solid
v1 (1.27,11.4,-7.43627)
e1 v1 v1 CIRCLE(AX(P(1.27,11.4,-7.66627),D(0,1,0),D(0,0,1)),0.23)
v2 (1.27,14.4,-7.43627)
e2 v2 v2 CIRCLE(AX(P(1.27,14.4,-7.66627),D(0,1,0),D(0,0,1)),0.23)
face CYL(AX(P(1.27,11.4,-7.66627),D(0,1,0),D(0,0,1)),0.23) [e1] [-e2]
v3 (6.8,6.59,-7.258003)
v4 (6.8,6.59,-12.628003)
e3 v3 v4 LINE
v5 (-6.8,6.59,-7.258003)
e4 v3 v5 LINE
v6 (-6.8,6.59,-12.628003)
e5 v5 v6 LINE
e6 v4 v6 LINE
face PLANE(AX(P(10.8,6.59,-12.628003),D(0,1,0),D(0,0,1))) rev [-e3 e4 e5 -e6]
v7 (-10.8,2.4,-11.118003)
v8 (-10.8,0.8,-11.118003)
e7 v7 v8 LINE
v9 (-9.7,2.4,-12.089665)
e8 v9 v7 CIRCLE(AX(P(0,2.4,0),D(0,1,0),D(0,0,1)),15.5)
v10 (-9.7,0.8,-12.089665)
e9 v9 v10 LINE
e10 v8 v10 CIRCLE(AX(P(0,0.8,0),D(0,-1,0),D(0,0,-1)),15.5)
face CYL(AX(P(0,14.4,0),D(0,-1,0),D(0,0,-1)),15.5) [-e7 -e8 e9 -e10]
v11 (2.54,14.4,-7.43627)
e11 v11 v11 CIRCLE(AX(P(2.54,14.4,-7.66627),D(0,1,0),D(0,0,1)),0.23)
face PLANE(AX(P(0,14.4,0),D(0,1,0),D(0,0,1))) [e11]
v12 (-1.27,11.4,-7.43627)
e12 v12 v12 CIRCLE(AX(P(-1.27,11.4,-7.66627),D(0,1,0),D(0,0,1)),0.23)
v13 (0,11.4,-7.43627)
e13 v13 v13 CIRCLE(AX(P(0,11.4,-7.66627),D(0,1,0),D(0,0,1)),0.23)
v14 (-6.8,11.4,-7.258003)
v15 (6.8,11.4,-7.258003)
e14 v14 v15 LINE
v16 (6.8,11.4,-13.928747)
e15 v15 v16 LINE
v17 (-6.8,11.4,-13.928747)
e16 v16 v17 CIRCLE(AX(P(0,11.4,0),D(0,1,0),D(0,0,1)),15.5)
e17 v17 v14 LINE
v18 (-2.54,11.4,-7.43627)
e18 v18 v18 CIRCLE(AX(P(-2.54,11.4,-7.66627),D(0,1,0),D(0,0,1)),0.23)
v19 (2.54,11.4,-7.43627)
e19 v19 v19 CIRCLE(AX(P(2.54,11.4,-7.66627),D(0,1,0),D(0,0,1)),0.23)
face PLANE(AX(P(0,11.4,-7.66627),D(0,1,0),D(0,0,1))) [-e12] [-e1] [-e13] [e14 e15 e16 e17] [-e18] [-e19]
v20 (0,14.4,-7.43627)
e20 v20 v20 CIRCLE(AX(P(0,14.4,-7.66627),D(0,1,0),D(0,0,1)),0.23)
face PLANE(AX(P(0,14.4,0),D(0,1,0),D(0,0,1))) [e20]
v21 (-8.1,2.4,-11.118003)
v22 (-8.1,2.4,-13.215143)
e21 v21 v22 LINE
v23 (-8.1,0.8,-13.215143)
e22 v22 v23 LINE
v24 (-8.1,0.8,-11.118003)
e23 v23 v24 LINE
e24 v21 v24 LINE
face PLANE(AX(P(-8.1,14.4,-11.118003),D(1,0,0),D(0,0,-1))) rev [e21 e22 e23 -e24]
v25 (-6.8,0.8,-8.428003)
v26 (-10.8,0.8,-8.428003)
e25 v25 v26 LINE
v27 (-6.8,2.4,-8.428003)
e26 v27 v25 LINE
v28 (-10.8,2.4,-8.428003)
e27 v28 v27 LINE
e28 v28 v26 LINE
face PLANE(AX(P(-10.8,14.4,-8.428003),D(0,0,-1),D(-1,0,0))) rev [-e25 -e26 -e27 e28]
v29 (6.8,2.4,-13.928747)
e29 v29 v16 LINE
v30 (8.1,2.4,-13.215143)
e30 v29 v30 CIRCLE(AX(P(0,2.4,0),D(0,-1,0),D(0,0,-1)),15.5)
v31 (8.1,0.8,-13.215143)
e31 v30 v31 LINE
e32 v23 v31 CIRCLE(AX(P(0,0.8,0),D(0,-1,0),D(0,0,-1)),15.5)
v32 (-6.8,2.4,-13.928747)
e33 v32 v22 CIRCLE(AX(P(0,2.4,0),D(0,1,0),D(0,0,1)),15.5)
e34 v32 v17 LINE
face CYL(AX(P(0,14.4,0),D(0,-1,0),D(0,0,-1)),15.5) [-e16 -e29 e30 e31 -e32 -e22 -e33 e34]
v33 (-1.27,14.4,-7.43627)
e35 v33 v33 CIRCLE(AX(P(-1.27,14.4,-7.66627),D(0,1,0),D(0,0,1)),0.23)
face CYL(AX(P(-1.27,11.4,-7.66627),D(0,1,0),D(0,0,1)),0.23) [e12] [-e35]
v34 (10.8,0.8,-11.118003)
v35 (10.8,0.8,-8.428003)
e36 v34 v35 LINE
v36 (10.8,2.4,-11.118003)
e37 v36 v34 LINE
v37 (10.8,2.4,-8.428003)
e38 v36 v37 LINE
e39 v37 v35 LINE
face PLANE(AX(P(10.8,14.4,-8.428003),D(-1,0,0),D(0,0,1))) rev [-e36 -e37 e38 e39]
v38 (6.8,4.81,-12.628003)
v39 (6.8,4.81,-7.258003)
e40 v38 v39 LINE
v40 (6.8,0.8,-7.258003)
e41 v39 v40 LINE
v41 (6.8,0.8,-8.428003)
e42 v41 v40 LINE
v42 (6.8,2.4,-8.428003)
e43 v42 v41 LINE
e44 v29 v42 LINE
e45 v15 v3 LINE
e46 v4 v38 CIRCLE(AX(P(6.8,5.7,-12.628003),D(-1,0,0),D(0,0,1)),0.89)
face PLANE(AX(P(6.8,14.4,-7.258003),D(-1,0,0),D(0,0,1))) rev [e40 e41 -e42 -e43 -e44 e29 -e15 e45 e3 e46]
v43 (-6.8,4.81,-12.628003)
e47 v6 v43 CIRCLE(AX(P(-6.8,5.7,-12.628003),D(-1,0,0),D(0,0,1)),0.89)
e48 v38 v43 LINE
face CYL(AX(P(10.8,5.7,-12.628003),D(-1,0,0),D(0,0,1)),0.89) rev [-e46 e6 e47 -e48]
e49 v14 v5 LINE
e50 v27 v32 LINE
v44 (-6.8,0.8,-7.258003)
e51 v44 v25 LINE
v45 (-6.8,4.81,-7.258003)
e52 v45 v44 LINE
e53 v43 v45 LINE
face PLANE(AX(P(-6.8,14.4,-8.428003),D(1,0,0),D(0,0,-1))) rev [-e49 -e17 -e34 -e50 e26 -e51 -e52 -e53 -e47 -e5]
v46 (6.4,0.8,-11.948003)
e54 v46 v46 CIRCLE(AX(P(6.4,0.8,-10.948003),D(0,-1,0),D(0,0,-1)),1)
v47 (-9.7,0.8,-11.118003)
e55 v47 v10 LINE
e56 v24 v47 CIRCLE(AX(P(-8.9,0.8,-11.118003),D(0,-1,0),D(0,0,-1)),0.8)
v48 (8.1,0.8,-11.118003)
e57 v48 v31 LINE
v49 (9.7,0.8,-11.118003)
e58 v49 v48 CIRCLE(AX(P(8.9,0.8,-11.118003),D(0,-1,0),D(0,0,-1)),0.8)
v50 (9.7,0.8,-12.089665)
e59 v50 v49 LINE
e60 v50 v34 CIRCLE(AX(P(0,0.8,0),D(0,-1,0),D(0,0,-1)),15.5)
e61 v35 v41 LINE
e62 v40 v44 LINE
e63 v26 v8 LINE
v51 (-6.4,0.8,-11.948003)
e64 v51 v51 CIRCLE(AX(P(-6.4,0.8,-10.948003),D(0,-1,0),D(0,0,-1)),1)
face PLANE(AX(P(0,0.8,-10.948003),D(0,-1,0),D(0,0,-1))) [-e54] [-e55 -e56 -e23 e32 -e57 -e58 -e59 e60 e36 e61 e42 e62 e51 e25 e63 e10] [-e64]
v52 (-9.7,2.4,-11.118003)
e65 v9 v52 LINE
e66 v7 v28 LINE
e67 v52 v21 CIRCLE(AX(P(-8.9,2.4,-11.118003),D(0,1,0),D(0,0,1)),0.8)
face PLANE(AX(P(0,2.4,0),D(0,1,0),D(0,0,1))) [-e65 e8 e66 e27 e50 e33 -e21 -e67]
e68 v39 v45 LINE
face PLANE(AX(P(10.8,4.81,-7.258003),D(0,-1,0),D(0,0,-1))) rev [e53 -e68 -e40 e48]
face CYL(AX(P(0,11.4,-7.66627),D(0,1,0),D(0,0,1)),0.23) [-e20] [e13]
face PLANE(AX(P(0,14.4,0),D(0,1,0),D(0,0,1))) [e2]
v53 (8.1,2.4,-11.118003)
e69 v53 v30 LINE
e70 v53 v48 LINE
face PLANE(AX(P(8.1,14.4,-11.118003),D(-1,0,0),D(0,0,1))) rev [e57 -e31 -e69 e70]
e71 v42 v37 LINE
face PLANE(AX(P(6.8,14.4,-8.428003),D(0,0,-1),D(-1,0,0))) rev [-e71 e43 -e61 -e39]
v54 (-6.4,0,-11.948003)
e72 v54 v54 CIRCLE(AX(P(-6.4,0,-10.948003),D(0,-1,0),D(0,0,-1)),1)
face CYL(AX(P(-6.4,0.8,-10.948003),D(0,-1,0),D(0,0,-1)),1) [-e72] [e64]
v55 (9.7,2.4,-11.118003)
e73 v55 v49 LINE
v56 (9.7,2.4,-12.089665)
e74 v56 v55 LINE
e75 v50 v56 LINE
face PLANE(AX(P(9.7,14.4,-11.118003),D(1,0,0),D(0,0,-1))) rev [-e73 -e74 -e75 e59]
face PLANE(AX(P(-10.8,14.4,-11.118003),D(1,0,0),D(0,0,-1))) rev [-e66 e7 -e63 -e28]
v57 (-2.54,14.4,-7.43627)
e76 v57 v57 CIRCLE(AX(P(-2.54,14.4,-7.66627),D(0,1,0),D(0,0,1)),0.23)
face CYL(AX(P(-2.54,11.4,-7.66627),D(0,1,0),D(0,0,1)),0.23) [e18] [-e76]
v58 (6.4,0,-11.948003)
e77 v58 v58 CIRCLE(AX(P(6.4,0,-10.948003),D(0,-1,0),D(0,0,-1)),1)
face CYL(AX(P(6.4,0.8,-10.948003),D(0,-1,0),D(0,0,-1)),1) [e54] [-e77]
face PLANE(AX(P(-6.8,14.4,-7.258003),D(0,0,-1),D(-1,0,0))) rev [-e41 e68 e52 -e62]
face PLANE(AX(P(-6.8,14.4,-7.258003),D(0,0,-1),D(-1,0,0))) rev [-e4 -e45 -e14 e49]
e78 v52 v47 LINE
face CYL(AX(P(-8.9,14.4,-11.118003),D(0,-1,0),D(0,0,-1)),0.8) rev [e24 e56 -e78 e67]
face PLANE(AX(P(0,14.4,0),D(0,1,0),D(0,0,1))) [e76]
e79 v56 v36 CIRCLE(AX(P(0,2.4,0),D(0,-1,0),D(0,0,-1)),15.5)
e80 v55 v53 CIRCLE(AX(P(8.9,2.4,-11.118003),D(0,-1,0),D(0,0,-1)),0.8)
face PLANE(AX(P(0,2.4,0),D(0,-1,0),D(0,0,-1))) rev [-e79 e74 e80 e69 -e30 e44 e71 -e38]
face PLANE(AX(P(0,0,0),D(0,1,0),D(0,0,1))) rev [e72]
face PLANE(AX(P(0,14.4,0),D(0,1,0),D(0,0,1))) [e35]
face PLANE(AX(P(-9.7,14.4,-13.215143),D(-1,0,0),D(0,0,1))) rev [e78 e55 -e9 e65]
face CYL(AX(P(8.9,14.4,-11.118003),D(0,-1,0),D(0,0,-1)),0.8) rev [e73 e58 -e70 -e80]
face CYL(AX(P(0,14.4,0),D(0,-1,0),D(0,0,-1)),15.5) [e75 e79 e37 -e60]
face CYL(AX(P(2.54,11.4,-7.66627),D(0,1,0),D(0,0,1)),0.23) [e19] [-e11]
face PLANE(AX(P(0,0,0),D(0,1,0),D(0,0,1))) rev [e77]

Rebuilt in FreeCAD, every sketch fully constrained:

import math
import FreeCAD as App
import Part
import Sketcher
from FreeCAD import Vector


def add_polygon(sketch, points):
    """Adds a closed chain of lines whose ends are joined by coincident constraints."""
    first, n = sketch.GeometryCount, len(points)
    for a, b in zip(points, points[1:] + points[:1]):
        sketch.addGeometry(Part.LineSegment(App.Vector(*a, 0), App.Vector(*b, 0)), False)
    for i in range(n):
        sketch.addConstraint(Sketcher.Constraint("Coincident", first + i, 2, first + (i + 1) % n, 1))

doc = App.newDocument("Part")
body = doc.addObject("PartDesign::Body", "Body")

# Sketch on XZ plane
sketch1 = doc.addObject("Sketcher::SketchObject", "Sketch")
body.addObject(sketch1)
sketch1.AttachmentSupport = (doc.XZ_Plane, [""])
sketch1.MapMode = "FlatFace"
sketch1.addGeometry([
    Part.LineSegment(Vector(-10.8, -11.1, 0), Vector(-10.8, -8.4, 0)),  # 0
    Part.LineSegment(Vector(-10.8, -8.4, 0), Vector(-6.8, -8.4, 0)),  # 1
    Part.LineSegment(Vector(-6.8, -8.4, 0), Vector(-6.8, -7.3, 0)),  # 2
    Part.LineSegment(Vector(-6.8, -7.3, 0), Vector(6.8, -7.3, 0)),  # 3
    Part.LineSegment(Vector(6.8, -7.3, 0), Vector(6.8, -8.4, 0)),  # 4
    Part.LineSegment(Vector(6.8, -8.4, 0), Vector(10.8, -8.4, 0)),  # 5
    Part.LineSegment(Vector(10.8, -8.4, 0), Vector(10.8, -11.1, 0)),  # 6
    Part.ArcOfCircle(Part.Circle(Vector(0, 0, 0), Vector(0, 0, 1), 15.5), math.radians(-134), math.radians(-46)),  # 7
], False)
sketch1.addConstraint([
    Sketcher.Constraint("Coincident", 0, 2, 1, 1),
    Sketcher.Constraint("Coincident", 1, 2, 2, 1),
    Sketcher.Constraint("Coincident", 2, 2, 3, 1),
    Sketcher.Constraint("Coincident", 3, 2, 4, 1),
    Sketcher.Constraint("Coincident", 4, 2, 5, 1),
    Sketcher.Constraint("Coincident", 5, 2, 6, 1),
    Sketcher.Constraint("Coincident", 6, 2, 7, 2),
    Sketcher.Constraint("Coincident", 7, 1, 0, 1),
    Sketcher.Constraint("Vertical", 0),
    Sketcher.Constraint("Horizontal", 1),
    Sketcher.Constraint("Vertical", 2),
    Sketcher.Constraint("Horizontal", 3),
    Sketcher.Constraint("Vertical", 4),
    Sketcher.Constraint("Horizontal", 5),
    Sketcher.Constraint("Vertical", 6),
    Sketcher.Constraint("Coincident", 7, 3, -1, 1),
    Sketcher.Constraint("Symmetric", 1, 2, 4, 2, -2),
    Sketcher.Constraint("Horizontal", 6, 2, 7, 1),
    Sketcher.Constraint("Radius", 7, 15.5),
    Sketcher.Constraint("DistanceX", 1, 1, 1, 2, 4.0),
    Sketcher.Constraint("DistanceX", 3, 1, 3, 2, 13.6),
    Sketcher.Constraint("DistanceY", 0, 1, 0, 2, 2.69),
    Sketcher.Constraint("DistanceY", 2, 1, 2, 2, 1.17),
])
pad1 = doc.addObject("PartDesign::Pad", "Pad")
body.addObject(pad1)
pad1.Profile = sketch1
pad1.Length = 14.4
pad1.Reversed = True

# Sketch on XZ plane
sketch2 = doc.addObject("Sketcher::SketchObject", "Sketch001")
body.addObject(sketch2)
sketch2.AttachmentSupport = (doc.XZ_Plane, [""])
sketch2.MapMode = "FlatFace"
sketch2.addGeometry([
    Part.Circle(Vector(0, -10.9, 0), Vector(0, 0, 1), 11.8),
    Part.Circle(Vector(-6.4, -10.9, 0), Vector(0, 0, 1), 1),
    Part.Circle(Vector(6.4, -10.9, 0), Vector(0, 0, 1), 1),
], False)
sketch2.addConstraint([
    Sketcher.Constraint("Equal", 1, 2),
    Sketcher.Constraint("Symmetric", 1, 3, 2, 3, -2),
    Sketcher.Constraint("PointOnObject", 0, 3, -2),
    Sketcher.Constraint("Horizontal", 0, 3, 1, 3),
    Sketcher.Constraint("Diameter", 1, 2.0),
    Sketcher.Constraint("DistanceX", 1, 3, -1, 1, 6.4),
    Sketcher.Constraint("Diameter", 0, 23.638878),
    Sketcher.Constraint("DistanceY", 0, 3, -1, 1, 10.948003),
])
pocket1 = doc.addObject("PartDesign::Pocket", "Pocket")
body.addObject(pocket1)
pocket1.Profile = sketch2
pocket1.Length = 0.8

# Sketch on XZ plane
sketch3 = doc.addObject("Sketcher::SketchObject", "Sketch002")
body.addObject(sketch3)
sketch3.AttachmentSupport = (doc.XZ_Plane, [""])
sketch3.MapMode = "FlatFace"
sketch3.AttachmentOffset = App.Placement(Vector(0, 0, -14.4), App.Rotation())
add_polygon(sketch3, [(-13, -14), (-13, -8), (-7, -8), (-7, -14)])  # lines 0-3
add_polygon(sketch3, [(7, -14), (7, -8), (13, -8), (13, -14)])  # lines 4-7
sketch3.addConstraint([
    Sketcher.Constraint("Vertical", 0),
    Sketcher.Constraint("Horizontal", 1),
    Sketcher.Constraint("Vertical", 2),
    Sketcher.Constraint("Horizontal", 3),
    Sketcher.Constraint("Vertical", 4),
    Sketcher.Constraint("Horizontal", 5),
    Sketcher.Constraint("Vertical", 6),
    Sketcher.Constraint("Horizontal", 7),
    Sketcher.Constraint("Symmetric", 1, 2, 4, 2, -2),
    Sketcher.Constraint("Horizontal", 3, 2, 6, 2),
    Sketcher.Constraint("DistanceX", 1, 2, -1, 1, 6.8),
    Sketcher.Constraint("DistanceX", 1, 1, 1, 2, 6.542631),
    Sketcher.Constraint("DistanceX", 5, 1, 5, 2, 5.841537),
    Sketcher.Constraint("DistanceY", 0, 1, 0, 2, 5.500744),
    Sketcher.Constraint("DistanceY", 0, 2, -1, 1, 8.428003),
])
pocket2 = doc.addObject("PartDesign::Pocket", "Pocket001")
body.addObject(pocket2)
pocket2.Profile = sketch3
pocket2.Length = 12
pocket2.Reversed = True

# Sketch on XZ plane
sketch4 = doc.addObject("Sketcher::SketchObject", "Sketch003")
body.addObject(sketch4)
sketch4.AttachmentSupport = (doc.XZ_Plane, [""])
sketch4.MapMode = "FlatFace"
sketch4.AttachmentOffset = App.Placement(Vector(0, 0, -0.8), App.Rotation())
sketch4.addGeometry([
    Part.LineSegment(Vector(9.7, -13.2, 0), Vector(9.7, -11.1, 0)),  # 0
    Part.ArcOfCircle(Part.Circle(Vector(8.9, -11.1, 0), Vector(0, 0, 1), 0.8), math.radians(0), math.radians(180)),  # 1
    Part.LineSegment(Vector(8.1, -11.1, 0), Vector(8.1, -13.2, 0)),  # 2
    Part.LineSegment(Vector(8.1, -13.2, 0), Vector(9.7, -13.2, 0)),  # 3
    Part.LineSegment(Vector(-8.1, -13.2, 0), Vector(-8.1, -11.1, 0)),  # 4
    Part.ArcOfCircle(Part.Circle(Vector(-8.9, -11.1, 0), Vector(0, 0, 1), 0.8), math.radians(0), math.radians(180)),  # 5
    Part.LineSegment(Vector(-9.7, -11.1, 0), Vector(-9.7, -13.2, 0)),  # 6
    Part.LineSegment(Vector(-9.7, -13.2, 0), Vector(-8.1, -13.2, 0)),  # 7
], False)
sketch4.addConstraint([
    Sketcher.Constraint("Tangent", 0, 2, 1, 1),
    Sketcher.Constraint("Tangent", 1, 2, 2, 1),
    Sketcher.Constraint("Coincident", 2, 2, 3, 1),
    Sketcher.Constraint("Coincident", 3, 2, 0, 1),
    Sketcher.Constraint("Tangent", 4, 2, 5, 1),
    Sketcher.Constraint("Tangent", 5, 2, 6, 1),
    Sketcher.Constraint("Coincident", 6, 2, 7, 1),
    Sketcher.Constraint("Coincident", 7, 2, 4, 1),
    Sketcher.Constraint("Vertical", 0),
    Sketcher.Constraint("Vertical", 2),
    Sketcher.Constraint("Horizontal", 3),
    Sketcher.Constraint("Vertical", 4),
    Sketcher.Constraint("Vertical", 6),
    Sketcher.Constraint("Horizontal", 7),
    Sketcher.Constraint("Equal", 1, 5),
    Sketcher.Constraint("Symmetric", 1, 3, 5, 3, -2),
    Sketcher.Constraint("Horizontal", 3, 2, 6, 2),
    Sketcher.Constraint("Radius", 1, 0.8),
    Sketcher.Constraint("DistanceX", 5, 3, 1, 2, 17.0),
    Sketcher.Constraint("DistanceY", 0, 1, 0, 2, 2.097139),
    Sketcher.Constraint("DistanceY", 1, 3, -1, 1, 11.118003),
])
pocket3 = doc.addObject("PartDesign::Pocket", "Pocket002")
body.addObject(pocket3)
pocket3.Profile = sketch4
pocket3.Type = "ThroughAll"

# Sketch on YZ plane
sketch5 = doc.addObject("Sketcher::SketchObject", "Sketch004")
body.addObject(sketch5)
sketch5.AttachmentSupport = (doc.YZ_Plane, [""])
sketch5.MapMode = "FlatFace"
sketch5.AttachmentOffset = App.Placement(Vector(0, 0, -6.8), App.Rotation())
sketch5.addGeometry([
    Part.LineSegment(Vector(6.6, -7.3, 0), Vector(6.6, -12.6, 0)),
    Part.ArcOfCircle(Part.Circle(Vector(5.7, -12.6, 0), Vector(0, 0, 1), 0.9), math.radians(180), math.radians(360)),
    Part.LineSegment(Vector(4.8, -12.6, 0), Vector(4.8, -7.3, 0)),
    Part.LineSegment(Vector(4.8, -7.3, 0), Vector(6.6, -7.3, 0)),
], False)
sketch5.addConstraint([
    Sketcher.Constraint("Tangent", 0, 2, 1, 2),
    Sketcher.Constraint("Tangent", 1, 1, 2, 1),
    Sketcher.Constraint("Coincident", 2, 2, 3, 1),
    Sketcher.Constraint("Coincident", 3, 2, 0, 1),
    Sketcher.Constraint("Vertical", 0),
    Sketcher.Constraint("Vertical", 2),
    Sketcher.Constraint("Horizontal", 3),
    Sketcher.Constraint("Radius", 1, 0.89),
    Sketcher.Constraint("DistanceY", 0, 2, 0, 1, 5.37),
    Sketcher.Constraint("DistanceX", -1, 1, 1, 3, 5.7),
    Sketcher.Constraint("DistanceY", 1, 3, -1, 1, 12.628003),
])
pocket4 = doc.addObject("PartDesign::Pocket", "Pocket003")
body.addObject(pocket4)
pocket4.Profile = sketch5
pocket4.Type = "ThroughAll"
pocket4.Reversed = True

# Sketch on XZ plane
sketch6 = doc.addObject("Sketcher::SketchObject", "Sketch005")
body.addObject(sketch6)
sketch6.AttachmentSupport = (doc.XZ_Plane, [""])
sketch6.MapMode = "FlatFace"
sketch6.AttachmentOffset = App.Placement(Vector(0, 0, -14.4), App.Rotation())
sketch6.addGeometry([
    Part.Circle(Vector(0, -7.67, 0), Vector(0, 0, 1), 9.66),  # 0
    Part.Circle(Vector(-2.54, -7.67, 0), Vector(0, 0, 1), 0.23),  # 1
    Part.Circle(Vector(-1.27, -7.67, 0), Vector(0, 0, 1), 0.23),  # 2
    Part.Circle(Vector(0, -7.67, 0), Vector(0, 0, 1), 0.23),  # 3
    Part.Circle(Vector(1.27, -7.67, 0), Vector(0, 0, 1), 0.23),  # 4
    Part.Circle(Vector(2.54, -7.67, 0), Vector(0, 0, 1), 0.23),  # 5
], False)
sketch6.addConstraint([
    Sketcher.Constraint("Coincident", 3, 3, 0, 3),
    Sketcher.Constraint("Equal", 1, 2),
    Sketcher.Constraint("Equal", 2, 3),
    Sketcher.Constraint("Equal", 3, 4),
    Sketcher.Constraint("Equal", 4, 5),
    Sketcher.Constraint("Symmetric", 2, 3, 4, 3, -2),
    Sketcher.Constraint("Symmetric", 1, 3, 5, 3, -2),
    Sketcher.Constraint("PointOnObject", 0, 3, -2),
    Sketcher.Constraint("Horizontal", 0, 3, 1, 3),
    Sketcher.Constraint("Horizontal", 1, 3, 2, 3),
    Sketcher.Constraint("Diameter", 1, 0.46),
    Sketcher.Constraint("Diameter", 0, 19.31052),
    Sketcher.Constraint("DistanceX", 1, 3, -1, 1, 2.54),
    Sketcher.Constraint("DistanceX", 2, 3, -1, 1, 1.27),
    Sketcher.Constraint("DistanceY", 0, 3, -1, 1, 7.66627),
])
pocket5 = doc.addObject("PartDesign::Pocket", "Pocket004")
body.addObject(pocket5)
pocket5.Profile = sketch6
pocket5.Length = 3
pocket5.Reversed = True

doc.recompute()
